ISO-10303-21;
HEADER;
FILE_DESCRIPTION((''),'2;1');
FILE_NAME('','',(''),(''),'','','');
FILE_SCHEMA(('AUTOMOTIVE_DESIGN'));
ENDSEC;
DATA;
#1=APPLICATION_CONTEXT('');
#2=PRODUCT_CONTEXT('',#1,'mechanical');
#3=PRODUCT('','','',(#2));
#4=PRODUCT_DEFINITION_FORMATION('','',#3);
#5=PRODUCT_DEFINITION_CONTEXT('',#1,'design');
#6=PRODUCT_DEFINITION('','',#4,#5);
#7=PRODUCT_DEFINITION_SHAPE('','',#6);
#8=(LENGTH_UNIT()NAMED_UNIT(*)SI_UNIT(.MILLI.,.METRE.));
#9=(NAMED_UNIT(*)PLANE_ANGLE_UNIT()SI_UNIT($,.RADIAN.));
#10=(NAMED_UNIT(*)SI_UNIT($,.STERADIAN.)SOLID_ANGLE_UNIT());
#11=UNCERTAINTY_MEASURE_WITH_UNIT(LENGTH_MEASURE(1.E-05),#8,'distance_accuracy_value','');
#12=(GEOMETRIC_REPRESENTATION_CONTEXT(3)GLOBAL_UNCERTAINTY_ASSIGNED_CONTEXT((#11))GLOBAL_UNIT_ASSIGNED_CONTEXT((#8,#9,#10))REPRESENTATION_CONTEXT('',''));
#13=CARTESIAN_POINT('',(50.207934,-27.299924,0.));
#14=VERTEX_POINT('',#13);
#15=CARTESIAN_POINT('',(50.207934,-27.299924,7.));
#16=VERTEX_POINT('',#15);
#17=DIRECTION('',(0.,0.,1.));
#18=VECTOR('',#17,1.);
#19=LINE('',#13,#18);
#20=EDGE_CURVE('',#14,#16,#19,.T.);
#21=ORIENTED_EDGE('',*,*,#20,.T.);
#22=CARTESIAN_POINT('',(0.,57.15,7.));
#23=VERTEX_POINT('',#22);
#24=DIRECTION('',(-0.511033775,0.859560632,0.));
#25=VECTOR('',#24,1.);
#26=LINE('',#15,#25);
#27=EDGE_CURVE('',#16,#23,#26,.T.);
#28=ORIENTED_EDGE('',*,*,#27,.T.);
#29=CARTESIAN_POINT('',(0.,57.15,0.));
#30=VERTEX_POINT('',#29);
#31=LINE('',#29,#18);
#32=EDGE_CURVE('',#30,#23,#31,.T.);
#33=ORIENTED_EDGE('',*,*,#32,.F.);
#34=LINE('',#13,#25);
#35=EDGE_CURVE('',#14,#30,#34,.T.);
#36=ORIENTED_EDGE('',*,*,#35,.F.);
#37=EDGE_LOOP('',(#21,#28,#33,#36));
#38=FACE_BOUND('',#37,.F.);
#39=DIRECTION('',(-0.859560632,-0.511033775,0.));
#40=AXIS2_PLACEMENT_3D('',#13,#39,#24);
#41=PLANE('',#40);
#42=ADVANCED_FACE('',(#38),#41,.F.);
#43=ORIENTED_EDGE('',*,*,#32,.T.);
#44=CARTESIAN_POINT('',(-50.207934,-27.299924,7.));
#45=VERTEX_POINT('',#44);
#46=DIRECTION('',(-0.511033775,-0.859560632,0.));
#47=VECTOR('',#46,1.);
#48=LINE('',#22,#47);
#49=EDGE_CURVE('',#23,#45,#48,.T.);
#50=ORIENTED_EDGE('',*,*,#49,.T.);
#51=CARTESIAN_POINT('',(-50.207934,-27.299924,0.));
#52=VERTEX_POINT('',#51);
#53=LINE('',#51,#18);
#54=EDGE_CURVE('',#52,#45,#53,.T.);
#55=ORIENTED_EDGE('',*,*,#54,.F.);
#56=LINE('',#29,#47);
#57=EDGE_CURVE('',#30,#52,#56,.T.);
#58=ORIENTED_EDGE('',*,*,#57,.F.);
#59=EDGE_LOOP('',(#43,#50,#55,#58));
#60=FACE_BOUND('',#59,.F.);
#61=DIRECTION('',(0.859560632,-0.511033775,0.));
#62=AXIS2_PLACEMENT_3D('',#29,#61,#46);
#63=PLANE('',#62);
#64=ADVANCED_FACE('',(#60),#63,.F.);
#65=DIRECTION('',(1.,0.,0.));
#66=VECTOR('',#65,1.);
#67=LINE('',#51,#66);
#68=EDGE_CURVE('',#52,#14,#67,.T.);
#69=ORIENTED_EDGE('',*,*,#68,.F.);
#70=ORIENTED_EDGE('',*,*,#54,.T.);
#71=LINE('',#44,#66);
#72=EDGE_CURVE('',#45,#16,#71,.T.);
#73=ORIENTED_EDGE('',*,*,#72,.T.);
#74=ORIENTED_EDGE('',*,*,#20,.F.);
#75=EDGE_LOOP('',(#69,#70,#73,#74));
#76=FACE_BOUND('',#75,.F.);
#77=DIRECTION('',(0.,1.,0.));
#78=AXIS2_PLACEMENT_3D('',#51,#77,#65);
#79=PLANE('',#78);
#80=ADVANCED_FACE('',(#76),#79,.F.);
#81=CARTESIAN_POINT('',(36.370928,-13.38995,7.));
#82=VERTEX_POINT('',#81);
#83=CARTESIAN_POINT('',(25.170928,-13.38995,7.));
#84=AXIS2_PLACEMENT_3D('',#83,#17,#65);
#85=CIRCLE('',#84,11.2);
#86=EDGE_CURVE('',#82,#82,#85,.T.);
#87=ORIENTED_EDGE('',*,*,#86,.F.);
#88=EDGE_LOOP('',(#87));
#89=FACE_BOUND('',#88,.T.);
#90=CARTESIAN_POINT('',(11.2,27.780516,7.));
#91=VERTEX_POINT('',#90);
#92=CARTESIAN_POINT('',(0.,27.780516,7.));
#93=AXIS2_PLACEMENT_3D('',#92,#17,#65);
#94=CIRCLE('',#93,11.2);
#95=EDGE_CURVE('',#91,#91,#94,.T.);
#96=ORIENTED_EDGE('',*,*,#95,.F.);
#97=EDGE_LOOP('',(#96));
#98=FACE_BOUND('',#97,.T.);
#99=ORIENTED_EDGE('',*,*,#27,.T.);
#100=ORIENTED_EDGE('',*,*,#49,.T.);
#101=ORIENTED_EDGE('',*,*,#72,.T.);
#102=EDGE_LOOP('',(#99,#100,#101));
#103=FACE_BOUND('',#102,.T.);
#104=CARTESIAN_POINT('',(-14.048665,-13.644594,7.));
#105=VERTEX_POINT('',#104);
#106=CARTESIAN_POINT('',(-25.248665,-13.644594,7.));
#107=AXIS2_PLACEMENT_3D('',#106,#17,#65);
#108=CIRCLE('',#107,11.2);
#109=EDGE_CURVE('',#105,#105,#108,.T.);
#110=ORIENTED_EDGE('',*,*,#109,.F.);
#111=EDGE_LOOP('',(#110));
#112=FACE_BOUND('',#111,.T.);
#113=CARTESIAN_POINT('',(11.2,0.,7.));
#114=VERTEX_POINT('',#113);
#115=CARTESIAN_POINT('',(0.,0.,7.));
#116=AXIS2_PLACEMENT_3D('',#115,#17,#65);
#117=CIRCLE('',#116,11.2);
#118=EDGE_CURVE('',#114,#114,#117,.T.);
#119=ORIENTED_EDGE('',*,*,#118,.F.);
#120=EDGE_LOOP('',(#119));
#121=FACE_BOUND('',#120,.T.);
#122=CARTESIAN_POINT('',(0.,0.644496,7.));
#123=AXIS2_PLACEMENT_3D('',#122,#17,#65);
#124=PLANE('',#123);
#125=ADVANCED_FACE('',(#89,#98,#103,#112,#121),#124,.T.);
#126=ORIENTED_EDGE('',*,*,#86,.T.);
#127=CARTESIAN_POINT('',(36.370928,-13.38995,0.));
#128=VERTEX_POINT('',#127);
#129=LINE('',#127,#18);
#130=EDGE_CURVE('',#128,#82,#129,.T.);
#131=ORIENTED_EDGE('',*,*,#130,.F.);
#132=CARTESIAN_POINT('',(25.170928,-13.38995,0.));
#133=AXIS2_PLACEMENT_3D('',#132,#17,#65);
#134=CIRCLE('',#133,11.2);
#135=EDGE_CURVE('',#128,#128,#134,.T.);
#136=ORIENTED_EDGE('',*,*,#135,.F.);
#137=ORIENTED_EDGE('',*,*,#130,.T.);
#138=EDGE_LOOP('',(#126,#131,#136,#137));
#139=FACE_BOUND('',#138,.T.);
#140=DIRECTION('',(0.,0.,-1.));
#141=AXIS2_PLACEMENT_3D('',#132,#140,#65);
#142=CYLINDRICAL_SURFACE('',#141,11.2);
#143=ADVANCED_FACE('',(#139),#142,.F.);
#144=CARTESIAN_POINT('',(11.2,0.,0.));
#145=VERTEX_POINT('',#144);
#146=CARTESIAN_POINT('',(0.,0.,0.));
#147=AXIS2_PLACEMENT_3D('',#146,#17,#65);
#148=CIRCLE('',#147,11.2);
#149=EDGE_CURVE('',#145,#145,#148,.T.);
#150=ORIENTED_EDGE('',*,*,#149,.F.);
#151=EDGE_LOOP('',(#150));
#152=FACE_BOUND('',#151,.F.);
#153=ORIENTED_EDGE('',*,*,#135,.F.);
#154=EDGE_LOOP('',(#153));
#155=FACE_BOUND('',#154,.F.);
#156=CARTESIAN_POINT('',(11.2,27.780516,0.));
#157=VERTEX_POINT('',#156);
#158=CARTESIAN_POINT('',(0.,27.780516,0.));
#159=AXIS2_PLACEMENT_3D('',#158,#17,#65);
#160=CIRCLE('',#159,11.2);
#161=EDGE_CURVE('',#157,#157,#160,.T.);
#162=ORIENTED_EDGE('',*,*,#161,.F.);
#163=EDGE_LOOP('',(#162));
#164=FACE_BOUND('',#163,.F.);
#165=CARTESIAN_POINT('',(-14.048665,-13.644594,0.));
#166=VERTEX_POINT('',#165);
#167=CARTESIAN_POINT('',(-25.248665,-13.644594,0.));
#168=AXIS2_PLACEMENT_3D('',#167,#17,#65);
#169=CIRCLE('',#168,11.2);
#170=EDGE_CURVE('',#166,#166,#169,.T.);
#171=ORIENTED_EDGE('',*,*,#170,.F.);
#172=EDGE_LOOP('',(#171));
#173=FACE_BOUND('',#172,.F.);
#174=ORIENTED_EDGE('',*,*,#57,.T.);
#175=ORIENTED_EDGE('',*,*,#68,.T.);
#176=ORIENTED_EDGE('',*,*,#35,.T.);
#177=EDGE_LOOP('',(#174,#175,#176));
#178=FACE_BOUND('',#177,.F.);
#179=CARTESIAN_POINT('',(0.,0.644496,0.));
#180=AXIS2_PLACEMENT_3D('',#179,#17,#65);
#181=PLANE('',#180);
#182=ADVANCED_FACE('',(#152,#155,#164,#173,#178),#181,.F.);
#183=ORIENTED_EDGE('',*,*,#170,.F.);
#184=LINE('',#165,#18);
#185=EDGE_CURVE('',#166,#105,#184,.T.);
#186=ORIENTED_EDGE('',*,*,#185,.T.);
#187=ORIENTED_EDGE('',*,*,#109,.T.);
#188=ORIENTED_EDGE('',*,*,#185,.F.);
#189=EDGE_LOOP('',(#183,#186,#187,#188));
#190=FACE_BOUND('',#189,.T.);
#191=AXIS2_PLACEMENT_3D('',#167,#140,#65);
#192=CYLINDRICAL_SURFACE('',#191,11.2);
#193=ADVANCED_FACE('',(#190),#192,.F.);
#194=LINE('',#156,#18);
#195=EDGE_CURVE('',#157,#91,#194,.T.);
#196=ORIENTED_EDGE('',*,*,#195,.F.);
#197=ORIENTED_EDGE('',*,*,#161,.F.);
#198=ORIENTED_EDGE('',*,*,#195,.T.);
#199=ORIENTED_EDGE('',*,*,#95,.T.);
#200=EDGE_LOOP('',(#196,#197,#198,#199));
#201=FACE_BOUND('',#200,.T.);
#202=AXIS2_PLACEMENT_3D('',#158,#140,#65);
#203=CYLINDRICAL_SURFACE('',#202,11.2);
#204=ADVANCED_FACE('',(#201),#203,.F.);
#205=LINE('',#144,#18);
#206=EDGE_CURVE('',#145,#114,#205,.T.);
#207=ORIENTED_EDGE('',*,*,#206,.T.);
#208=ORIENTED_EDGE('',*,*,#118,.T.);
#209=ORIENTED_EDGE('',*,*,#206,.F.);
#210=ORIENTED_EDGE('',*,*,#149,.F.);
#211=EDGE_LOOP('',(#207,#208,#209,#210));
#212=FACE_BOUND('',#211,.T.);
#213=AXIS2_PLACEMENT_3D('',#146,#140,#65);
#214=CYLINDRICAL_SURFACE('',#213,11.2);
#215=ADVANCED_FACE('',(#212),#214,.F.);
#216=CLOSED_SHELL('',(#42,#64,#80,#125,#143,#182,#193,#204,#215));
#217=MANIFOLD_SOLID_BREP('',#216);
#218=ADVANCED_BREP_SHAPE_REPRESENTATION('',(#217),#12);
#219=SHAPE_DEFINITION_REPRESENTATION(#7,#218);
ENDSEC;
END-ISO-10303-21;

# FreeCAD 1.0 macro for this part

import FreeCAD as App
import Part
import Sketcher

V = App.Vector
Q = App.Units.Quantity

doc = App.newDocument("Part")
body = doc.addObject("PartDesign::Body", "Body")

# Sketch on XY plane
sketch1 = body.newObject("Sketcher::SketchObject", "Sketch")
sketch1.AttachmentSupport = (doc.getObject("XY_Plane"), [""])
sketch1.MapMode = "FlatFace"
sketch1.addGeometry(Part.LineSegment(V(50.207934, -27.299924, 0), V(0, 57.15, 0)), False)
sketch1.addGeometry(Part.LineSegment(V(0, 57.15, 0), V(-50.207934, -27.299924, 0)), False)
sketch1.addGeometry(Part.LineSegment(V(-50.207934, -27.299924, 0), V(50.207934, -27.299924, 0)), False)
sketch1.addGeometry(Part.Circle(V(-25.248665, -13.644594, 0), V(0, 0, 1), 11.2), False)
sketch1.addGeometry(Part.Circle(V(25.170928, -13.38995, 0), V(0, 0, 1), 11.2), False)
sketch1.addGeometry(Part.Circle(V(0, 0, 0), V(0, 0, 1), 11.2), False)
sketch1.addGeometry(Part.Circle(V(0, 27.780516, 0), V(0, 0, 1), 11.2), False)
sketch1.addConstraint(Sketcher.Constraint("Coincident", 0, 2, 1, 1))
sketch1.addConstraint(Sketcher.Constraint("Coincident", 1, 2, 2, 1))
sketch1.addConstraint(Sketcher.Constraint("Coincident", 2, 2, 0, 1))
sketch1.addConstraint(Sketcher.Constraint("Horizontal", 2))
sketch1.addConstraint(Sketcher.Constraint("Coincident", 5, 3, -1, 1))
sketch1.addConstraint(Sketcher.Constraint("Equal", 3, 4))
sketch1.addConstraint(Sketcher.Constraint("Equal", 4, 5))
sketch1.addConstraint(Sketcher.Constraint("Equal", 5, 6))
sketch1.addConstraint(Sketcher.Constraint("PointOnObject", 6, 3, -2))
sketch1.addConstraint(Sketcher.Constraint("PointOnObject", 0, 2, -2))
sketch1.addConstraint(Sketcher.Constraint("Equal", 0, 1))
sketch1.addConstraint(Sketcher.Constraint("Diameter", 3, Q("22.4 mm")))
sketch1.addConstraint(Sketcher.Constraint("DistanceY", -1, 1, 0, 2, Q("57.15 mm")))
sketch1.addConstraint(Sketcher.Constraint("DistanceX", 2, 1, 2, 2, Q("100.415868 mm")))
sketch1.addConstraint(Sketcher.Constraint("DistanceX", 3, 3, 2, 2, Q("75.456599 mm")))
sketch1.addConstraint(Sketcher.Constraint("Distance", 0, Q("98.24778 mm")))
sketch1.addConstraint(Sketcher.Constraint("DistanceX", -1, 1, 4, 3, Q("25.170928 mm")))
sketch1.addConstraint(Sketcher.Constraint("DistanceY", 4, 3, -1, 1, Q("13.38995 mm")))
sketch1.addConstraint(Sketcher.Constraint("DistanceY", 3, 3, 6, 3, Q("41.42511 mm")))
sketch1.addConstraint(Sketcher.Constraint("DistanceY", 1, 2, 3, 3, Q("13.65533 mm")))
pad1 = body.newObject("PartDesign::Pad", "Pad")
pad1.Profile = sketch1
pad1.Length = 7

doc.recompute()
